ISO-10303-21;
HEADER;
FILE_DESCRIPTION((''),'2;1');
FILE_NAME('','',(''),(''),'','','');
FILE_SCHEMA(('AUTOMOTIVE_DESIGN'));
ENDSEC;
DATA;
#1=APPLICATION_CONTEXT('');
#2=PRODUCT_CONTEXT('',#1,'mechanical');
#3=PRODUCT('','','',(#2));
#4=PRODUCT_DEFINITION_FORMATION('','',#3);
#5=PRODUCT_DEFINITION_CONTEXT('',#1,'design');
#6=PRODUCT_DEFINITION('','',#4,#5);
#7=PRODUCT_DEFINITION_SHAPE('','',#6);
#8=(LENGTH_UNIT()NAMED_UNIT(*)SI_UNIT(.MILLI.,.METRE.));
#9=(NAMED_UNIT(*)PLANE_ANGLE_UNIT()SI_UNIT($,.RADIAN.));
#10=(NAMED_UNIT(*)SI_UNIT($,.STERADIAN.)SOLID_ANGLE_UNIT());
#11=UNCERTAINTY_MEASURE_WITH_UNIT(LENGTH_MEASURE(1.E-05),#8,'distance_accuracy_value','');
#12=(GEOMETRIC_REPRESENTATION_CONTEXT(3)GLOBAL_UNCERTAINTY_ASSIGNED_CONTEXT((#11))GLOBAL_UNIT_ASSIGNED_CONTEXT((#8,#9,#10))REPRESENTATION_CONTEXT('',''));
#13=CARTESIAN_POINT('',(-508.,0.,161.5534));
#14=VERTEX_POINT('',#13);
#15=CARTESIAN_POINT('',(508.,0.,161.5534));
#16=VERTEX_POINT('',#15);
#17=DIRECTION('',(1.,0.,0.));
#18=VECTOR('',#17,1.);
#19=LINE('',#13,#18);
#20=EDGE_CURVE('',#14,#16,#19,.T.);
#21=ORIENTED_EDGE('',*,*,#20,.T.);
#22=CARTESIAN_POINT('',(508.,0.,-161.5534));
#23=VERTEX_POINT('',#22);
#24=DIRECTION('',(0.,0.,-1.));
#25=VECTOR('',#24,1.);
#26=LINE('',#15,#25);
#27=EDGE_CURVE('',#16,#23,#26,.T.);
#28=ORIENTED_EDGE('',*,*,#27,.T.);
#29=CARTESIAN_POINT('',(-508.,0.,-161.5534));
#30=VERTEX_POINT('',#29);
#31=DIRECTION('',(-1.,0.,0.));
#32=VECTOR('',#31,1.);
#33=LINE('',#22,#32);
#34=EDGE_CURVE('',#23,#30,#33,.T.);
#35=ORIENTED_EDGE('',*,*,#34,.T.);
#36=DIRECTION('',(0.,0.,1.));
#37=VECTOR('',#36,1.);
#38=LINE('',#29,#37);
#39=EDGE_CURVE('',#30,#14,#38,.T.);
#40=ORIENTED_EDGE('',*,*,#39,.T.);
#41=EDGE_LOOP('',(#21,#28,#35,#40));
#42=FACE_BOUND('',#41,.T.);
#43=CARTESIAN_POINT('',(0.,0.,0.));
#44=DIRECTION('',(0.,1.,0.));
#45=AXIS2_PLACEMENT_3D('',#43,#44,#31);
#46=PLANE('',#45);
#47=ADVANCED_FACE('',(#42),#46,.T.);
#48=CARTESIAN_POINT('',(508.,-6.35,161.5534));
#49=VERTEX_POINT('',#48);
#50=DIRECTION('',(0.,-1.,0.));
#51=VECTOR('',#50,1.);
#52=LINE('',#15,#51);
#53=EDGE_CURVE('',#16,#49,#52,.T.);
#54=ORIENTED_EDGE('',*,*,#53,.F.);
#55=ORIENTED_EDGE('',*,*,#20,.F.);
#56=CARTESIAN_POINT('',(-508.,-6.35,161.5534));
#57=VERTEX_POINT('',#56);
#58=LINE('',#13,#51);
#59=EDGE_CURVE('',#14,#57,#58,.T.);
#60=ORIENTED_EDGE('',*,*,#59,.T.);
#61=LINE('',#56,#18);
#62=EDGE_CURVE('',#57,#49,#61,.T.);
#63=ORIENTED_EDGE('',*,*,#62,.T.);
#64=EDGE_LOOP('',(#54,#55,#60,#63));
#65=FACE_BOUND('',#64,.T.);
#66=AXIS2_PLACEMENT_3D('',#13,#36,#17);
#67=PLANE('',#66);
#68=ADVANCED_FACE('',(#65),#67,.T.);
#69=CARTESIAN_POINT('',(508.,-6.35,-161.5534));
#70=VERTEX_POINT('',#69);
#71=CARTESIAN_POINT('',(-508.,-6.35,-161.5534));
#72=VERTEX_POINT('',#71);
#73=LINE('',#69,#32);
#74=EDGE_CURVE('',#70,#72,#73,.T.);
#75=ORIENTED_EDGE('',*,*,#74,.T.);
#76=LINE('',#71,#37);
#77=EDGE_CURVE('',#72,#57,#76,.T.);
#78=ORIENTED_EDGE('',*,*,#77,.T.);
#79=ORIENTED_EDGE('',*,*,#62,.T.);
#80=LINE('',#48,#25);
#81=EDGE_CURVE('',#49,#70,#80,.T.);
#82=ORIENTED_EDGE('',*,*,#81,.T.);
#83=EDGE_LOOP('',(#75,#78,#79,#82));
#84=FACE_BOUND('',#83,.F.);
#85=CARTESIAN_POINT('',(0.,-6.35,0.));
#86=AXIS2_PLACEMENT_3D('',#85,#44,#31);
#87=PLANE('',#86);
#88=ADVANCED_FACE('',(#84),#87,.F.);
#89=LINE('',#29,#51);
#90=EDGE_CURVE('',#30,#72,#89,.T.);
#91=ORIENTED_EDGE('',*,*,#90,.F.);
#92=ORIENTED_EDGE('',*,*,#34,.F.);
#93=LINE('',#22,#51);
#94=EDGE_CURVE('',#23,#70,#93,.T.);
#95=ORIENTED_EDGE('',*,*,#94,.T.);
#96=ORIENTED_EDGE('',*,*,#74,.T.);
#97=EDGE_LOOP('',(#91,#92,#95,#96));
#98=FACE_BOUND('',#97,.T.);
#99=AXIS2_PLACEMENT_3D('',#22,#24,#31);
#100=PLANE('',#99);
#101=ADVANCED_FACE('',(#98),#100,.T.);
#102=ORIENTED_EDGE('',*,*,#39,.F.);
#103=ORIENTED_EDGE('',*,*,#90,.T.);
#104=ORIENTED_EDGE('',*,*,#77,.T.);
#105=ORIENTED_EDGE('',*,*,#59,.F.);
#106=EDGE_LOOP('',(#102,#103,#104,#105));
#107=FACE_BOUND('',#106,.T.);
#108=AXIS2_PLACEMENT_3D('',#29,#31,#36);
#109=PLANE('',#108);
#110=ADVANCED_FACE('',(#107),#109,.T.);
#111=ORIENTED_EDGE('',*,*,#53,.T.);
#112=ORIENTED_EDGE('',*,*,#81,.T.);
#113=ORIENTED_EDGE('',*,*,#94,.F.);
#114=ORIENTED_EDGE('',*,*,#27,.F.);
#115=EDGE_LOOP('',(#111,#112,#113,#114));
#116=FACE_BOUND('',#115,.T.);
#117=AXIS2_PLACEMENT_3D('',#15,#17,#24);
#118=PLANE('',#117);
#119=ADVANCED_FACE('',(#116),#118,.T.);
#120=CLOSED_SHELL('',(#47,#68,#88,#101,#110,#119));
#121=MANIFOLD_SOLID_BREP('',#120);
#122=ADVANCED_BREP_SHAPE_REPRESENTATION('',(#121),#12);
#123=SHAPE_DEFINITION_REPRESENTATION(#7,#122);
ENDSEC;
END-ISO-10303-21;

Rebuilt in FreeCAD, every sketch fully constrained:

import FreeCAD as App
import Part
import Sketcher

V = App.Vector
Q = App.Units.Quantity

doc = App.newDocument("Part")
body = doc.addObject("PartDesign::Body", "Body")

# Sketch on XZ plane
sketch1 = body.newObject("Sketcher::SketchObject", "Sketch")
sketch1.AttachmentSupport = (doc.getObject("XZ_Plane"), [""])
sketch1.MapMode = "FlatFace"
sketch1.addGeometry([
    Part.LineSegment(V(-508, -161.5534, 0), V(-508, 161.5534, 0)),
    Part.LineSegment(V(-508, 161.5534, 0), V(508, 161.5534, 0)),
    Part.LineSegment(V(508, 161.5534, 0), V(508, -161.5534, 0)),
    Part.LineSegment(V(508, -161.5534, 0), V(-508, -161.5534, 0)),
], False)
sketch1.addConstraint([
    Sketcher.Constraint("Coincident", 0, 2, 1, 1),
    Sketcher.Constraint("Coincident", 1, 2, 2, 1),
    Sketcher.Constraint("Coincident", 2, 2, 3, 1),
    Sketcher.Constraint("Coincident", 3, 2, 0, 1),
    Sketcher.Constraint("Vertical", 0),
    Sketcher.Constraint("Horizontal", 1),
    Sketcher.Constraint("Vertical", 2),
    Sketcher.Constraint("Horizontal", 3),
    Sketcher.Constraint("Symmetric", 0, 2, 2, 2, -1, 1),
    Sketcher.Constraint("DistanceX", 1, 1, 1, 2, Q("40 in")),
    Sketcher.Constraint("DistanceY", 0, 1, 0, 2, 323.1068),
])
pad1 = body.newObject("PartDesign::Pad", "Pad")
pad1.Profile = sketch1
pad1.Length = Q("0.25 in")

doc.recompute()
